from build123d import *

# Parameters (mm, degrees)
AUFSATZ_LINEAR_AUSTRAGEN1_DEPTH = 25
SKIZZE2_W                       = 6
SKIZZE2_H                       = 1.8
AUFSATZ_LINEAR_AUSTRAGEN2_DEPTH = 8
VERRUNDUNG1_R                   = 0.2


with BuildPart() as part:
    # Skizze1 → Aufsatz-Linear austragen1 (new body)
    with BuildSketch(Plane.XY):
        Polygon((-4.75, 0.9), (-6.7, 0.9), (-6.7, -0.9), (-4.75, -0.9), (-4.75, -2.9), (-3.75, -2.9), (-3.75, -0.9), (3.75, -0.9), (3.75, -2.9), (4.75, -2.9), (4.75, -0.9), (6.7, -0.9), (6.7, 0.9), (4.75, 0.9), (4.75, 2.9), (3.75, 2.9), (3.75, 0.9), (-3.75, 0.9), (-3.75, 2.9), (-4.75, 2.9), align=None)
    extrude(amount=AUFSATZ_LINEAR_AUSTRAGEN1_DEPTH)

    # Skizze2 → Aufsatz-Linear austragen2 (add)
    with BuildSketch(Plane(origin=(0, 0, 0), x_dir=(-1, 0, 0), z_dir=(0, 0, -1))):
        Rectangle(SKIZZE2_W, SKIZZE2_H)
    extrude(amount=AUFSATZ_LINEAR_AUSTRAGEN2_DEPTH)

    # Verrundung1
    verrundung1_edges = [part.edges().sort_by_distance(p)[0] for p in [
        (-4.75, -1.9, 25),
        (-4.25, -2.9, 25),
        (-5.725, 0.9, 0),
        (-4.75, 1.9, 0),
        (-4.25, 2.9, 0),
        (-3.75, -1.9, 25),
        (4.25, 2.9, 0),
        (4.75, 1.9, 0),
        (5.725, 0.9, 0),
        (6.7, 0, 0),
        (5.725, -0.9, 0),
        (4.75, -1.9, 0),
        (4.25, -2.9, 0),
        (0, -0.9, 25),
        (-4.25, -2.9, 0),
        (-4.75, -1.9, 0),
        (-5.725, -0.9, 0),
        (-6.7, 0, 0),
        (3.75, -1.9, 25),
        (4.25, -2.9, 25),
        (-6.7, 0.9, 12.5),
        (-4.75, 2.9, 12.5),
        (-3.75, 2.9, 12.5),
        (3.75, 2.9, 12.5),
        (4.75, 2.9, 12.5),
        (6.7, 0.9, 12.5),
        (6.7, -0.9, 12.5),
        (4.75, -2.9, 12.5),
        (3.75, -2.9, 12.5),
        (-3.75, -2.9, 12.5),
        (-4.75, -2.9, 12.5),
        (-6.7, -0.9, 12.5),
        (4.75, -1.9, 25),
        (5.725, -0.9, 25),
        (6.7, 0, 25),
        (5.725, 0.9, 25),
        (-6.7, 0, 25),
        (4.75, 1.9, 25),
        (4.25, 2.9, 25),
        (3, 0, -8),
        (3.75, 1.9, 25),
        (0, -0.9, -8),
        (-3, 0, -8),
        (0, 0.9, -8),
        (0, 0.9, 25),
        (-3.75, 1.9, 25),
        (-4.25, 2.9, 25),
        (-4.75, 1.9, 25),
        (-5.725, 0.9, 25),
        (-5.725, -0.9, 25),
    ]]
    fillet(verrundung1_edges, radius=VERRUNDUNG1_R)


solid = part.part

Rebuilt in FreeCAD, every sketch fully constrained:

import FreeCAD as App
import Part
import Sketcher


def edges_at(feature, points):
    """Names of the edges that pass closest to the given points."""
    edges = feature.Shape.Edges
    near = lambda p: min(range(len(edges)), key=lambda i: edges[i].distToShape(Part.Vertex(*p))[0])
    return sorted({f"Edge{near(p) + 1}" for p in points})

doc = App.newDocument("Part")
body = doc.addObject("PartDesign::Body", "Body")

sketch1 = body.newObject("Sketcher::SketchObject", "Sketch")
sketch1.AttachmentSupport = (doc.getObject("XY_Plane"), [""])
sketch1.MapMode = "FlatFace"
sketch1.addGeometry(Part.LineSegment(App.Vector(-4.8, 0.9, 0), App.Vector(-6.7, 0.9, 0)), False)
sketch1.addGeometry(Part.LineSegment(App.Vector(-6.7, 0.9, 0), App.Vector(-6.7, -0.9, 0)), False)
sketch1.addGeometry(Part.LineSegment(App.Vector(-6.7, -0.9, 0), App.Vector(-4.8, -0.9, 0)), False)
sketch1.addGeometry(Part.LineSegment(App.Vector(-4.8, -0.9, 0), App.Vector(-4.8, -2.9, 0)), False)
sketch1.addGeometry(Part.LineSegment(App.Vector(-4.8, -2.9, 0), App.Vector(-3.8, -2.9, 0)), False)
sketch1.addGeometry(Part.LineSegment(App.Vector(-3.8, -2.9, 0), App.Vector(-3.8, -0.9, 0)), False)
sketch1.addGeometry(Part.LineSegment(App.Vector(-3.8, -0.9, 0), App.Vector(3.8, -0.9, 0)), False)
sketch1.addGeometry(Part.LineSegment(App.Vector(3.8, -0.9, 0), App.Vector(3.8, -2.9, 0)), False)
sketch1.addGeometry(Part.LineSegment(App.Vector(3.8, -2.9, 0), App.Vector(4.8, -2.9, 0)), False)
sketch1.addGeometry(Part.LineSegment(App.Vector(4.8, -2.9, 0), App.Vector(4.8, -0.9, 0)), False)
sketch1.addGeometry(Part.LineSegment(App.Vector(4.8, -0.9, 0), App.Vector(6.7, -0.9, 0)), False)
sketch1.addGeometry(Part.LineSegment(App.Vector(6.7, -0.9, 0), App.Vector(6.7, 0.9, 0)), False)
sketch1.addGeometry(Part.LineSegment(App.Vector(6.7, 0.9, 0), App.Vector(4.8, 0.9, 0)), False)
sketch1.addGeometry(Part.LineSegment(App.Vector(4.8, 0.9, 0), App.Vector(4.8, 2.9, 0)), False)
sketch1.addGeometry(Part.LineSegment(App.Vector(4.8, 2.9, 0), App.Vector(3.8, 2.9, 0)), False)
sketch1.addGeometry(Part.LineSegment(App.Vector(3.8, 2.9, 0), App.Vector(3.8, 0.9, 0)), False)
sketch1.addGeometry(Part.LineSegment(App.Vector(3.8, 0.9, 0), App.Vector(-3.8, 0.9, 0)), False)
sketch1.addGeometry(Part.LineSegment(App.Vector(-3.8, 0.9, 0), App.Vector(-3.8, 2.9, 0)), False)
sketch1.addGeometry(Part.LineSegment(App.Vector(-3.8, 2.9, 0), App.Vector(-4.8, 2.9, 0)), False)
sketch1.addGeometry(Part.LineSegment(App.Vector(-4.8, 2.9, 0), App.Vector(-4.8, 0.9, 0)), False)
sketch1.addConstraint(Sketcher.Constraint("Coincident", 0, 2, 1, 1))
sketch1.addConstraint(Sketcher.Constraint("Coincident", 1, 2, 2, 1))
sketch1.addConstraint(Sketcher.Constraint("Coincident", 2, 2, 3, 1))
sketch1.addConstraint(Sketcher.Constraint("Coincident", 3, 2, 4, 1))
sketch1.addConstraint(Sketcher.Constraint("Coincident", 4, 2, 5, 1))
sketch1.addConstraint(Sketcher.Constraint("Coincident", 5, 2, 6, 1))
sketch1.addConstraint(Sketcher.Constraint("Coincident", 6, 2, 7, 1))
sketch1.addConstraint(Sketcher.Constraint("Coincident", 7, 2, 8, 1))
sketch1.addConstraint(Sketcher.Constraint("Coincident", 8, 2, 9, 1))
sketch1.addConstraint(Sketcher.Constraint("Coincident", 9, 2, 10, 1))
sketch1.addConstraint(Sketcher.Constraint("Coincident", 10, 2, 11, 1))
sketch1.addConstraint(Sketcher.Constraint("Coincident", 11, 2, 12, 1))
sketch1.addConstraint(Sketcher.Constraint("Coincident", 12, 2, 13, 1))
sketch1.addConstraint(Sketcher.Constraint("Coincident", 13, 2, 14, 1))
sketch1.addConstraint(Sketcher.Constraint("Coincident", 14, 2, 15, 1))
sketch1.addConstraint(Sketcher.Constraint("Coincident", 15, 2, 16, 1))
sketch1.addConstraint(Sketcher.Constraint("Coincident", 16, 2, 17, 1))
sketch1.addConstraint(Sketcher.Constraint("Coincident", 17, 2, 18, 1))
sketch1.addConstraint(Sketcher.Constraint("Coincident", 18, 2, 19, 1))
sketch1.addConstraint(Sketcher.Constraint("Coincident", 19, 2, 0, 1))
sketch1.addConstraint(Sketcher.Constraint("Horizontal", 0))
sketch1.addConstraint(Sketcher.Constraint("Vertical", 1))
sketch1.addConstraint(Sketcher.Constraint("Horizontal", 2))
sketch1.addConstraint(Sketcher.Constraint("Vertical", 3))
sketch1.addConstraint(Sketcher.Constraint("Horizontal", 4))
sketch1.addConstraint(Sketcher.Constraint("Vertical", 5))
sketch1.addConstraint(Sketcher.Constraint("Horizontal", 6))
sketch1.addConstraint(Sketcher.Constraint("Vertical", 7))
sketch1.addConstraint(Sketcher.Constraint("Horizontal", 8))
sketch1.addConstraint(Sketcher.Constraint("Vertical", 9))
sketch1.addConstraint(Sketcher.Constraint("Horizontal", 10))
sketch1.addConstraint(Sketcher.Constraint("Vertical", 11))
sketch1.addConstraint(Sketcher.Constraint("Horizontal", 12))
sketch1.addConstraint(Sketcher.Constraint("Vertical", 13))
sketch1.addConstraint(Sketcher.Constraint("Horizontal", 14))
sketch1.addConstraint(Sketcher.Constraint("Vertical", 15))
sketch1.addConstraint(Sketcher.Constraint("Horizontal", 16))
sketch1.addConstraint(Sketcher.Constraint("Vertical", 17))
sketch1.addConstraint(Sketcher.Constraint("Horizontal", 18))
sketch1.addConstraint(Sketcher.Constraint("Vertical", 19))
sketch1.addConstraint(Sketcher.Constraint("Symmetric", 0, 2, 10, 2, -1, 1))
sketch1.addConstraint(Sketcher.Constraint("Symmetric", 2, 2, 12, 2, -1, 1))
sketch1.addConstraint(Sketcher.Constraint("Symmetric", 4, 2, 14, 2, -1, 1))
sketch1.addConstraint(Sketcher.Constraint("Symmetric", 6, 2, 16, 2, -1, 1))
sketch1.addConstraint(Sketcher.Constraint("Symmetric", 8, 2, 18, 2, -1, 1))
sketch1.addConstraint(Sketcher.Constraint("Symmetric", 4, 2, 7, 2, -2))
sketch1.addConstraint(Sketcher.Constraint("Symmetric", 2, 2, 9, 2, -2))
sketch1.addConstraint(Sketcher.Constraint("Horizontal", 2, 2, 5, 2))
sketch1.addConstraint(Sketcher.Constraint("DistanceX", 4, 1, 4, 2, 1.0))
sketch1.addConstraint(Sketcher.Constraint("DistanceY", 3, 2, 3, 1, 2.0))
sketch1.addConstraint(Sketcher.Constraint("DistanceX", 6, 1, 6, 2, 7.5))
sketch1.addConstraint(Sketcher.Constraint("DistanceY", 1, 2, 1, 1, 1.8))
sketch1.addConstraint(Sketcher.Constraint("DistanceX", 0, 2, 0, 1, 1.95))
pad1 = body.newObject("PartDesign::Pad", "Pad")
pad1.Profile = sketch1
pad1.Length = 25

sketch2 = body.newObject("Sketcher::SketchObject", "Sketch001")
sketch2.AttachmentSupport = (doc.getObject("XY_Plane"), [""])
sketch2.MapMode = "FlatFace"
sketch2.addGeometry(Part.LineSegment(App.Vector(3, 0.9, 0), App.Vector(3, -0.9, 0)), False)
sketch2.addGeometry(Part.LineSegment(App.Vector(3, -0.9, 0), App.Vector(-3, -0.9, 0)), False)
sketch2.addGeometry(Part.LineSegment(App.Vector(-3, -0.9, 0), App.Vector(-3, 0.9, 0)), False)
sketch2.addGeometry(Part.LineSegment(App.Vector(-3, 0.9, 0), App.Vector(3, 0.9, 0)), False)
sketch2.addConstraint(Sketcher.Constraint("Coincident", 0, 2, 1, 1))
sketch2.addConstraint(Sketcher.Constraint("Coincident", 1, 2, 2, 1))
sketch2.addConstraint(Sketcher.Constraint("Coincident", 2, 2, 3, 1))
sketch2.addConstraint(Sketcher.Constraint("Coincident", 3, 2, 0, 1))
sketch2.addConstraint(Sketcher.Constraint("Vertical", 0))
sketch2.addConstraint(Sketcher.Constraint("Horizontal", 1))
sketch2.addConstraint(Sketcher.Constraint("Vertical", 2))
sketch2.addConstraint(Sketcher.Constraint("Horizontal", 3))
sketch2.addConstraint(Sketcher.Constraint("Symmetric", 0, 2, 2, 2, -1, 1))
sketch2.addConstraint(Sketcher.Constraint("DistanceX", 1, 2, 1, 1, 6.0))
sketch2.addConstraint(Sketcher.Constraint("DistanceY", 0, 2, 0, 1, 1.8))
pad2 = body.newObject("PartDesign::Pad", "Pad001")
pad2.Profile = sketch2
pad2.Length = 8
pad2.Reversed = True
doc.recompute()

fillet = body.newObject("PartDesign::Fillet", "Fillet")
fillet.Base = (pad2, edges_at(pad2, [
    (-4.75, -1.9, 25),
    (-4.25, -2.9, 25),
    (-5.725, 0.9, 0),
    (-4.75, 1.9, 0),
    (-4.25, 2.9, 0),
    (-3.75, -1.9, 25),
    (4.25, 2.9, 0),
    (4.75, 1.9, 0),
    (5.725, 0.9, 0),
    (6.7, 0, 0),
    (5.725, -0.9, 0),
    (4.75, -1.9, 0),
    (4.25, -2.9, 0),
    (0, -0.9, 25),
    (-4.25, -2.9, 0),
    (-4.75, -1.9, 0),
    (-5.725, -0.9, 0),
    (-6.7, 0, 0),
    (3.75, -1.9, 25),
    (4.25, -2.9, 25),
    (-6.7, 0.9, 12.5),
    (-4.75, 2.9, 12.5),
    (-3.75, 2.9, 12.5),
    (3.75, 2.9, 12.5),
    (4.75, 2.9, 12.5),
    (6.7, 0.9, 12.5),
    (6.7, -0.9, 12.5),
    (4.75, -2.9, 12.5),
    (3.75, -2.9, 12.5),
    (-3.75, -2.9, 12.5),
    (-4.75, -2.9, 12.5),
    (-6.7, -0.9, 12.5),
    (4.75, -1.9, 25),
    (5.725, -0.9, 25),
    (6.7, 0, 25),
    (5.725, 0.9, 25),
    (-6.7, 0, 25),
    (4.75, 1.9, 25),
    (4.25, 2.9, 25),
    (3, 0, -8),
    (3.75, 1.9, 25),
    (0, -0.9, -8),
    (-3, 0, -8),
    (0, 0.9, -8),
    (0, 0.9, 25),
    (-3.75, 1.9, 25),
    (-4.25, 2.9, 25),
    (-4.75, 1.9, 25),
    (-5.725, 0.9, 25),
    (-5.725, -0.9, 25),
]))
fillet.Radius = 0.2

doc.recompute()
